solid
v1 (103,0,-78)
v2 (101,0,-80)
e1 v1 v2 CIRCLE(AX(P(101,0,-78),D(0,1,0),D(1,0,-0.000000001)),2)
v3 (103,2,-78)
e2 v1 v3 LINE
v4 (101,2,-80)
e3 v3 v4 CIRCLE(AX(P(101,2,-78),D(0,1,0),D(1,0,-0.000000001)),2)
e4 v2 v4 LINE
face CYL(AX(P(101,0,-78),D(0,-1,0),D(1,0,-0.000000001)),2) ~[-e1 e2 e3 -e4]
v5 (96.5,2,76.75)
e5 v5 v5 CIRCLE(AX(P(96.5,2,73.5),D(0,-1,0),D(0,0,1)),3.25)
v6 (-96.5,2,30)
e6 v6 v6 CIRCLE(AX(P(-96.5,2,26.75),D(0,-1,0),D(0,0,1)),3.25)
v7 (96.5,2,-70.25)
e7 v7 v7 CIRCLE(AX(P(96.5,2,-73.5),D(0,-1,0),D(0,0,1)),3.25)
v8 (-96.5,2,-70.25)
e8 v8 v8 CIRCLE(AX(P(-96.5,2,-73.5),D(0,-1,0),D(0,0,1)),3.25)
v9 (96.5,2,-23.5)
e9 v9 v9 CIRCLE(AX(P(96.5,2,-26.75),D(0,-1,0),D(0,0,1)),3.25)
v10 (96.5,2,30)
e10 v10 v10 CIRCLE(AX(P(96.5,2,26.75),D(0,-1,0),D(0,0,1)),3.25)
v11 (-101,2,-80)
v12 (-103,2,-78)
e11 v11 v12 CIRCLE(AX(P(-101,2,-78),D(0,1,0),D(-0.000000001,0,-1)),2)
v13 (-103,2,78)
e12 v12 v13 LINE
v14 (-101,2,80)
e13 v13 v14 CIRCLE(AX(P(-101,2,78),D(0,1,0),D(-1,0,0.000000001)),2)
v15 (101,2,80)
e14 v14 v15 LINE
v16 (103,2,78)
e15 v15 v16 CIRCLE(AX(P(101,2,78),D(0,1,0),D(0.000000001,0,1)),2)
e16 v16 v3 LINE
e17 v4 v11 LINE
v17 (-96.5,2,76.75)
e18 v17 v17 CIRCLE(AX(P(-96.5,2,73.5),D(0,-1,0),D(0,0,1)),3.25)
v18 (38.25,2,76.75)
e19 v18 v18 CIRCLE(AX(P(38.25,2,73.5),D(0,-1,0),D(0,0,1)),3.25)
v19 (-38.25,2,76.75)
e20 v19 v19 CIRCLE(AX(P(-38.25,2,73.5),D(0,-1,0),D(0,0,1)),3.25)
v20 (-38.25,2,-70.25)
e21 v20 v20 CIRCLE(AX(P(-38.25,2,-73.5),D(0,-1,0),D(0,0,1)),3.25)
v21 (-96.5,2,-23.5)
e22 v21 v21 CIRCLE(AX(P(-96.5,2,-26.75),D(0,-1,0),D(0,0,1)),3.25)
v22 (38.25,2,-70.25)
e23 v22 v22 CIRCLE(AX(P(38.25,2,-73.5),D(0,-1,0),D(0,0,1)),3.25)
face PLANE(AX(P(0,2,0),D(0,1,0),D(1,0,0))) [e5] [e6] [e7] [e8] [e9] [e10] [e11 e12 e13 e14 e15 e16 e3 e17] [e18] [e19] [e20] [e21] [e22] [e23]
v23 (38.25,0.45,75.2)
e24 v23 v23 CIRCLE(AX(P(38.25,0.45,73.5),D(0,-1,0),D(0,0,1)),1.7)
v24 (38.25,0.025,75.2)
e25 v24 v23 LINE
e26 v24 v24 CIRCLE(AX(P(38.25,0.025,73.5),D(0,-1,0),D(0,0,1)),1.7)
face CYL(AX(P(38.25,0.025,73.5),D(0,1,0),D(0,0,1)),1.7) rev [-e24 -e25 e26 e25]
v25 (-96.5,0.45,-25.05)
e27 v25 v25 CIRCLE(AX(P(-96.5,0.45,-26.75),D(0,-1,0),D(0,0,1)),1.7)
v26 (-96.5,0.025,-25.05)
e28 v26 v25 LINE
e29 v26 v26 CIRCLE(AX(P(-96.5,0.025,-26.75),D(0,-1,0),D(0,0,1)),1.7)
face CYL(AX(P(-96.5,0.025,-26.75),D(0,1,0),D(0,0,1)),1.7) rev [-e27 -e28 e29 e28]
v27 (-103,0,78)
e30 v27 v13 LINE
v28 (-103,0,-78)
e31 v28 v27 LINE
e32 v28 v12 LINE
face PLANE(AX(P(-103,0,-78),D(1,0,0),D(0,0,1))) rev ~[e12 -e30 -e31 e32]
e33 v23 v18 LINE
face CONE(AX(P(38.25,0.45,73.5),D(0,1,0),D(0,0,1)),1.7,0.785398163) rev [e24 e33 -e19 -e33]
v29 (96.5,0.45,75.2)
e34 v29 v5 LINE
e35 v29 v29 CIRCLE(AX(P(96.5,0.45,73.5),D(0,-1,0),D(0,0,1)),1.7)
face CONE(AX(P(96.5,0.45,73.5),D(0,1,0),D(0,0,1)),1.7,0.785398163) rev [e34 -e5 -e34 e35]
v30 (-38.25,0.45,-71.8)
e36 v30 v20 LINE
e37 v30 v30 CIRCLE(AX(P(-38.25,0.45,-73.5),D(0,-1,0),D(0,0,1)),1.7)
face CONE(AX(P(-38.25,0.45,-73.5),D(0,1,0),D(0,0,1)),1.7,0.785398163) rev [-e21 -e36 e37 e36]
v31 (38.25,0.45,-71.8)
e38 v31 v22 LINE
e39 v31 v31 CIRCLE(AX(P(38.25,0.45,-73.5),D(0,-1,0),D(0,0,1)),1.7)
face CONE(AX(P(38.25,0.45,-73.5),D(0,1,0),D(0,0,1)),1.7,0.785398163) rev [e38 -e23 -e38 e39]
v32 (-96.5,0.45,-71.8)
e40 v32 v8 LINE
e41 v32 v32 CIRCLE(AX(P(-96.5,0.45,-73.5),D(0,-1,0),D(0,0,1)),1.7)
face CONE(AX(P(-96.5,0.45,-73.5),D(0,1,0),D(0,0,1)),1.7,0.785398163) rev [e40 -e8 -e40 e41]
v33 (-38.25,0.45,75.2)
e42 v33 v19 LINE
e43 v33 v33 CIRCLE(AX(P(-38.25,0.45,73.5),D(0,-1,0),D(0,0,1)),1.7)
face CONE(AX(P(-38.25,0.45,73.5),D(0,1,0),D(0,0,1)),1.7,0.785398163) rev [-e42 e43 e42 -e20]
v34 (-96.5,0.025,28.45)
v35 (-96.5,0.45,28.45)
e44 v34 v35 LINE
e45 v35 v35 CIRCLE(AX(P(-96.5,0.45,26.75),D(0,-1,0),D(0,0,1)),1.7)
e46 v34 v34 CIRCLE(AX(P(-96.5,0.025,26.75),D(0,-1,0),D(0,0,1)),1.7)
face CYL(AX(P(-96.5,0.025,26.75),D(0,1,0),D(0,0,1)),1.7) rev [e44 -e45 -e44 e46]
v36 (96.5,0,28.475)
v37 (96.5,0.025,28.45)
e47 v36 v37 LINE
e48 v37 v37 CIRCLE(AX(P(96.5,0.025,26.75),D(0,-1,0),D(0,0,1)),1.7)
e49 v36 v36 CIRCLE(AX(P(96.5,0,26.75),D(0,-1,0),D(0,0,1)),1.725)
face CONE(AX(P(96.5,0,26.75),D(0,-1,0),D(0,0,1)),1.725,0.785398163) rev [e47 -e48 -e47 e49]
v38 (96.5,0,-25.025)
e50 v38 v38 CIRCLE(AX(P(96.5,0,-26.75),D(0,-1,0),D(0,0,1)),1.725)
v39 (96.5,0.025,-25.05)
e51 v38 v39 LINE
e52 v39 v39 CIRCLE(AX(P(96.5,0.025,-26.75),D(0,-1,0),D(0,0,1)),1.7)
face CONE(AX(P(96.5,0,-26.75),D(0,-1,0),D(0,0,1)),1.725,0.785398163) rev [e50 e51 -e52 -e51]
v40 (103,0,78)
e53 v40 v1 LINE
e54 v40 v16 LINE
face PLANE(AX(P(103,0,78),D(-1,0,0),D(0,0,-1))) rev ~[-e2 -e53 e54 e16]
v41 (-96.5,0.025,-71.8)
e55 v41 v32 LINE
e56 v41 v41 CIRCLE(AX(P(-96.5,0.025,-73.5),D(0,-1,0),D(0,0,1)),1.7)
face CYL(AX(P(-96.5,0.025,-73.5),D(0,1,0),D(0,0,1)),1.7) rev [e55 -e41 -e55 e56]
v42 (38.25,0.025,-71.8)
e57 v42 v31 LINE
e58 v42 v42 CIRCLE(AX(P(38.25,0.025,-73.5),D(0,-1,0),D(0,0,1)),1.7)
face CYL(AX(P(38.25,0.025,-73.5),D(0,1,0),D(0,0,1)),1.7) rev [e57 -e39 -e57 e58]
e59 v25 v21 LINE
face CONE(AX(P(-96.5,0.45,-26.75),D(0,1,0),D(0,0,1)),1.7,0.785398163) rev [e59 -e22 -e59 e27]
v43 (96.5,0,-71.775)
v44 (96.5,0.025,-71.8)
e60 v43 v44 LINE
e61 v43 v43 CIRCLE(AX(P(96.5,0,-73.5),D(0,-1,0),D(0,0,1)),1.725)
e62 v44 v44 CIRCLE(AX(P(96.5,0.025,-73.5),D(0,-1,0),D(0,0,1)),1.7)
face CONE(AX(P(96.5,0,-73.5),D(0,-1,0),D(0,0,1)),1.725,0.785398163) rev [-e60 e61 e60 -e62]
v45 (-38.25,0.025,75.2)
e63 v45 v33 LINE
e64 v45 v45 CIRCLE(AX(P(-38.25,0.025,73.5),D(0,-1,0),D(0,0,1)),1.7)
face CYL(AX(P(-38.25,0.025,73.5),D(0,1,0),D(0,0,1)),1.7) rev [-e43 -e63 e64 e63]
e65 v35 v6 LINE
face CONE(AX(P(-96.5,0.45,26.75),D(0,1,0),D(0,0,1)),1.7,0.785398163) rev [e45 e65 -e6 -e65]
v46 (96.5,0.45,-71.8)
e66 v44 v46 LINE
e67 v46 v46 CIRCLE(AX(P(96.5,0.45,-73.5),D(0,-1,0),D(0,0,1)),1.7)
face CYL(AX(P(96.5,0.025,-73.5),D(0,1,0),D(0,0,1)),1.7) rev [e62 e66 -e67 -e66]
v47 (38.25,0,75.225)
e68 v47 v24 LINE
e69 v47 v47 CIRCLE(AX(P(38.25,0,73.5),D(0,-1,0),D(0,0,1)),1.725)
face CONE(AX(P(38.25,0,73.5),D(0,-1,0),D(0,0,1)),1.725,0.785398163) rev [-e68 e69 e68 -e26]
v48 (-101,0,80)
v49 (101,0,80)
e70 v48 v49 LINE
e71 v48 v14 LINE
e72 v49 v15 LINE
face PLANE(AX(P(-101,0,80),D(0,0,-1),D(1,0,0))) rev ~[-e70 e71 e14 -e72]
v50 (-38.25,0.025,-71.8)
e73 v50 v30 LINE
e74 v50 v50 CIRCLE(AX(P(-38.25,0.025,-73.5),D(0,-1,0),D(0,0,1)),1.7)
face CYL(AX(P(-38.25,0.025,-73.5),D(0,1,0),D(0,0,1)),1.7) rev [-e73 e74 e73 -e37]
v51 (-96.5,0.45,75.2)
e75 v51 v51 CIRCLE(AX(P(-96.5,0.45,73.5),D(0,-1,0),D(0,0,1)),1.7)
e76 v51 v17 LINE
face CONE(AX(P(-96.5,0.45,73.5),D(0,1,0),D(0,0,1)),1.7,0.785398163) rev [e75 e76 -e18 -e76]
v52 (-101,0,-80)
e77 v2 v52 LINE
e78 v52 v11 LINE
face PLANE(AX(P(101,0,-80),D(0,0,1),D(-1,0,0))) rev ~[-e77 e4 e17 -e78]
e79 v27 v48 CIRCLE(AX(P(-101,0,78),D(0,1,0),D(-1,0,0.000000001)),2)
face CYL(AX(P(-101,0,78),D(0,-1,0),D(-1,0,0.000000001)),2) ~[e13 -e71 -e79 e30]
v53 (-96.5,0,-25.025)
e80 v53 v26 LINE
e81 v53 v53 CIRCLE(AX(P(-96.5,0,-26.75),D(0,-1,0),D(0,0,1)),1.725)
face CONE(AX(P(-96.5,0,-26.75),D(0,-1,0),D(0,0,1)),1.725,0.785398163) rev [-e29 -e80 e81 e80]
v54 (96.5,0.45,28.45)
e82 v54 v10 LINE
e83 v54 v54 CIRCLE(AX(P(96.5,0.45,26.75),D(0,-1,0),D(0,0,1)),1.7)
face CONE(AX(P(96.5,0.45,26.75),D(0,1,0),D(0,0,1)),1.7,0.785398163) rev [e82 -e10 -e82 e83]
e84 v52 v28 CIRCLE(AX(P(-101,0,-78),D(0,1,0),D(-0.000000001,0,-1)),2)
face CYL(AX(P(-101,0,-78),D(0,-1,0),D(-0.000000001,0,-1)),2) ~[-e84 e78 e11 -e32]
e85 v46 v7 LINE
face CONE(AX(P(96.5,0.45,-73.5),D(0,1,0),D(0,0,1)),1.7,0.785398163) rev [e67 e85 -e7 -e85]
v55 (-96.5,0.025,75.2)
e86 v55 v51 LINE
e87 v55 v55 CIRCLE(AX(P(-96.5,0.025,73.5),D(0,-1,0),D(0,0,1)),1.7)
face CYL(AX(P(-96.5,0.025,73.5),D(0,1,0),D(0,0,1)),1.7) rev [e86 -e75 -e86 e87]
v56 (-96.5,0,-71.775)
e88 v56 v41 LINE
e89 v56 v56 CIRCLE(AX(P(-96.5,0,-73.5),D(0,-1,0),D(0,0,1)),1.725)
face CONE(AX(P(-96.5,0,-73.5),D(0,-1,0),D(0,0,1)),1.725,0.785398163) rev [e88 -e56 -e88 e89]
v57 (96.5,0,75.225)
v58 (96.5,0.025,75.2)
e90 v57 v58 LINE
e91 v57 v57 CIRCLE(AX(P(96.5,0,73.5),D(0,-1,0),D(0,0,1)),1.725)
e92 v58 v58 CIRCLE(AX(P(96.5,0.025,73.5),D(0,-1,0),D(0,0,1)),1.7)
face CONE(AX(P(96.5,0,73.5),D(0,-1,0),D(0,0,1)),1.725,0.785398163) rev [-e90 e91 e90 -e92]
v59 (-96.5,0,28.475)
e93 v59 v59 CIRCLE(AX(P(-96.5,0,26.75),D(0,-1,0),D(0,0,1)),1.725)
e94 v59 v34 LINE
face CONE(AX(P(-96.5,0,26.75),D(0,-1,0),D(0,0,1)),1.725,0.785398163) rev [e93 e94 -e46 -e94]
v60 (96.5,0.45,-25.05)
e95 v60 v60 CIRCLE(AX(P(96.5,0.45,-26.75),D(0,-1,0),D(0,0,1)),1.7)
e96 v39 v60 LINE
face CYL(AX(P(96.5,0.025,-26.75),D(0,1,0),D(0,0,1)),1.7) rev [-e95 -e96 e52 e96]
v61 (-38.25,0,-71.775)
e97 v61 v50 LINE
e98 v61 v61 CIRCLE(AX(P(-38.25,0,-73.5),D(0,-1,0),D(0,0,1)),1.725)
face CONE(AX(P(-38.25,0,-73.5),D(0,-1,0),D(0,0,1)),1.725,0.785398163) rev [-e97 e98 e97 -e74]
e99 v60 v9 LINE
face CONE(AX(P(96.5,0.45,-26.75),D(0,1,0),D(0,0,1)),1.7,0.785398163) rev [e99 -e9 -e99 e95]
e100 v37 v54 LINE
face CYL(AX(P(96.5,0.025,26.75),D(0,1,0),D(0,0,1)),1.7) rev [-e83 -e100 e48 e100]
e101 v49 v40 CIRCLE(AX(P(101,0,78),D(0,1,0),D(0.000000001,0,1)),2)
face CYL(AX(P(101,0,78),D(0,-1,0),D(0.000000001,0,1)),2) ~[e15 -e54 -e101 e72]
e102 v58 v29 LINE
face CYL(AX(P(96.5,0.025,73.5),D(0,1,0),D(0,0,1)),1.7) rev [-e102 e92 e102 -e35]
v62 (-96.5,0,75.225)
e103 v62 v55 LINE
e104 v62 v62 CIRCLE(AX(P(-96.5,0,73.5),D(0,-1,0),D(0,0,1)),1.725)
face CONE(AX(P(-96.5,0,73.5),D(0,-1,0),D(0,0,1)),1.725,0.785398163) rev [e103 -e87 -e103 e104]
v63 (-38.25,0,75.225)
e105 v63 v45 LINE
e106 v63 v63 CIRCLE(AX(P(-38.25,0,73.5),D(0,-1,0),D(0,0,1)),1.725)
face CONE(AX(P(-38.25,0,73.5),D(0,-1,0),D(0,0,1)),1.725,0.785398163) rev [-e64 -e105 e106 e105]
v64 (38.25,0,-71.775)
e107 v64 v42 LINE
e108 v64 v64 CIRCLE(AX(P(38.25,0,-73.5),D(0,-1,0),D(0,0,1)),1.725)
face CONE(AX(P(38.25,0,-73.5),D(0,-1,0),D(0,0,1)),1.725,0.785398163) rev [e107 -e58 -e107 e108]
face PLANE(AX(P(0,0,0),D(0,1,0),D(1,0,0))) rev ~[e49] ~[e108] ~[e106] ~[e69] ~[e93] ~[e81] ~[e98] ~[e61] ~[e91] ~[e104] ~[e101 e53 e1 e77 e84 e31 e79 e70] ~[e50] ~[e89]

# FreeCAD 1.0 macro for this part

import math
import FreeCAD as App
import Part
import Sketcher
Q = App.Units.Quantity


def add_polygon(sketch, points):
    """Adds a closed chain of lines whose ends are joined by coincident constraints."""
    first, n = sketch.GeometryCount, len(points)
    for a, b in zip(points, points[1:] + points[:1]):
        sketch.addGeometry(Part.LineSegment(App.Vector(*a, 0), App.Vector(*b, 0)), False)
    for i in range(n):
        sketch.addConstraint(Sketcher.Constraint("Coincident", first + i, 2, first + (i + 1) % n, 1))

doc = App.newDocument("Part")
body = doc.addObject("PartDesign::Body", "Body")

sketch1 = body.newObject("Sketcher::SketchObject", "Sketch")
sketch1.AttachmentSupport = (doc.getObject("XZ_Plane"), [""])
sketch1.MapMode = "FlatFace"
sketch1.addGeometry([
    Part.LineSegment(App.Vector(103, 78, 0), App.Vector(103, -78, 0)),
    Part.ArcOfCircle(Part.Circle(App.Vector(101, -78, 0), App.Vector(0, 0, 1), 2), math.radians(-90), math.radians(0)),
    Part.LineSegment(App.Vector(101, -80, 0), App.Vector(-101, -80, 0)),
    Part.ArcOfCircle(Part.Circle(App.Vector(-101, -78, 0), App.Vector(0, 0, 1), 2), math.radians(-180), math.radians(-90)),
    Part.LineSegment(App.Vector(-103, -78, 0), App.Vector(-103, 78, 0)),
    Part.ArcOfCircle(Part.Circle(App.Vector(-101, 78, 0), App.Vector(0, 0, 1), 2), math.radians(90), math.radians(180)),
    Part.LineSegment(App.Vector(-101, 80, 0), App.Vector(101, 80, 0)),
    Part.ArcOfCircle(Part.Circle(App.Vector(101, 78, 0), App.Vector(0, 0, 1), 2), math.radians(0), math.radians(90)),
], False)
sketch1.addConstraint([
    Sketcher.Constraint("Tangent", 0, 2, 1, 2),
    Sketcher.Constraint("Tangent", 1, 1, 2, 1),
    Sketcher.Constraint("Tangent", 2, 2, 3, 2),
    Sketcher.Constraint("Tangent", 3, 1, 4, 1),
    Sketcher.Constraint("Tangent", 4, 2, 5, 2),
    Sketcher.Constraint("Tangent", 5, 1, 6, 1),
    Sketcher.Constraint("Tangent", 6, 2, 7, 2),
    Sketcher.Constraint("Tangent", 7, 1, 0, 1),
    Sketcher.Constraint("Vertical", 0),
    Sketcher.Constraint("Horizontal", 2),
    Sketcher.Constraint("Vertical", 4),
    Sketcher.Constraint("Horizontal", 6),
    Sketcher.Constraint("Equal", 1, 3),
    Sketcher.Constraint("Equal", 3, 5),
    Sketcher.Constraint("Equal", 5, 7),
    Sketcher.Constraint("Symmetric", 1, 3, 5, 3, -1, 1),
    Sketcher.Constraint("Radius", 1, 2.0),
    Sketcher.Constraint("DistanceX", 2, 2, 2, 1, 202.0),
    Sketcher.Constraint("DistanceY", 0, 2, 0, 1, 156.0),
])
pad1 = body.newObject("PartDesign::Pad", "Pad")
pad1.Profile = sketch1
pad1.Length = 2
pad1.Reversed = True

sketch2 = body.newObject("Sketcher::SketchObject", "Sketch001")
sketch2.AttachmentSupport = (doc.getObject("YZ_Plane"), [""])
sketch2.MapMode = "FlatFace"
sketch2.AttachmentOffset = App.Placement(App.Vector(0, 0, -96.5), App.Rotation())
add_polygon(sketch2, [(0, -73.5), (2, -73.5), (2, -70.25), (0.45, -71.8), (0.025, -71.8), (0, -71.775)])
sketch2.addGeometry(Part.LineSegment(App.Vector(2, -73.5, 0), App.Vector(0, -73.5, 0)), True)
sketch2.addConstraint([
    Sketcher.Constraint("Horizontal", 0),
    Sketcher.Constraint("Vertical", 1),
    Sketcher.Constraint("Horizontal", 3),
    Sketcher.Constraint("Vertical", 5),
    Sketcher.Constraint("Horizontal", 6),
    Sketcher.Constraint("Coincident", 6, 1, 0, 2),
    Sketcher.Constraint("PointOnObject", 4, 2, -2),
    Sketcher.Constraint("PointOnObject", 6, 2, -2),
    Sketcher.Constraint("Perpendicular", 2, 4),
    Sketcher.Constraint("DistanceX", 0, 1, 0, 2, 2.0),
    Sketcher.Constraint("Angle", 2, Q("-135 deg")),
    Sketcher.Constraint("DistanceY", 1, 1, 1, 2, 3.25),
    Sketcher.Constraint("DistanceY", 0, 2, -1, 1, 73.5),
    Sketcher.Constraint("DistanceY", 2, 2, -1, 1, 71.8),
    Sketcher.Constraint("DistanceX", 3, 2, 3, 1, 0.425),
])
groove = body.newObject("PartDesign::Groove", "Groove")
groove.Profile = sketch2
groove.ReferenceAxis = (sketch2, ["Axis0"])
groove.Angle = 360
doc.recompute()

linearpattern = body.newObject("PartDesign::LinearPattern", "LinearPattern")
linearpattern.Originals = [groove]
linearpattern.Direction = (doc.getObject("Z_Axis"), [""])
linearpattern.Mode = "offset"
linearpattern.Offset = 46.75
linearpattern.Occurrences = 2
body.Tip = linearpattern
doc.recompute()

linearpattern2 = body.newObject("PartDesign::LinearPattern", "LinearPattern001")
linearpattern2.Originals = [groove]
linearpattern2.Direction = (doc.getObject("X_Axis"), [""])
linearpattern2.Mode = "offset"
linearpattern2.Offset = 58.25
linearpattern2.Occurrences = 2
body.Tip = linearpattern2
doc.recompute()

linearpattern3 = body.newObject("PartDesign::LinearPattern", "LinearPattern002")
linearpattern3.Originals = [groove]
linearpattern3.Direction = (doc.getObject("X_Axis"), [""])
linearpattern3.Mode = "offset"
linearpattern3.Offset = 134.75
linearpattern3.Occurrences = 2
body.Tip = linearpattern3
doc.recompute()

linearpattern4 = body.newObject("PartDesign::LinearPattern", "LinearPattern003")
linearpattern4.Originals = [groove]
linearpattern4.Direction = (doc.getObject("X_Axis"), [""])
linearpattern4.Mode = "offset"
linearpattern4.Offset = 193
linearpattern4.Occurrences = 2
body.Tip = linearpattern4
doc.recompute()

datumline = body.newObject("PartDesign::Line", "DatumLine")
datumline.Placement = App.Placement(App.Vector(0, 0, 0), App.Rotation(App.Vector(0, 0, 1), App.Vector(0.971893764, 0, 0.235419863)))
linearpattern5 = body.newObject("PartDesign::LinearPattern", "LinearPattern004")
linearpattern5.Originals = [groove]
linearpattern5.Direction = (datumline, [""])
linearpattern5.Mode = "offset"
linearpattern5.Offset = 198.581375
linearpattern5.Occurrences = 2
body.Tip = linearpattern5
doc.recompute()

datumline2 = body.newObject("PartDesign::Line", "DatumLine001")
datumline2.Placement = App.Placement(App.Vector(0, 0, 0), App.Rotation(App.Vector(0, 0, 1), App.Vector(0.88742374, 0, 0.460954559)))
linearpattern6 = body.newObject("PartDesign::LinearPattern", "LinearPattern005")
linearpattern6.Originals = [groove]
linearpattern6.Direction = (datumline2, [""])
linearpattern6.Mode = "offset"
linearpattern6.Offset = 217.483476
linearpattern6.Occurrences = 2
body.Tip = linearpattern6
doc.recompute()

datumline3 = body.newObject("PartDesign::Line", "DatumLine002")
datumline3.Placement = App.Placement(App.Vector(0, 0, 0), App.Rotation(App.Vector(0, 0, 1), App.Vector(0.795526331, 0, 0.605919019)))
linearpattern7 = body.newObject("PartDesign::LinearPattern", "LinearPattern006")
linearpattern7.Originals = [groove]
linearpattern7.Direction = (datumline3, [""])
linearpattern7.Mode = "offset"
linearpattern7.Offset = 242.606678
linearpattern7.Occurrences = 2
body.Tip = linearpattern7
doc.recompute()

datumline4 = body.newObject("PartDesign::Line", "DatumLine003")
datumline4.Placement = App.Placement(App.Vector(0, 0, 0), App.Rotation(App.Vector(0, 0, 1), App.Vector(0.675724629, 0, 0.73715414)))
linearpattern8 = body.newObject("PartDesign::LinearPattern", "LinearPattern007")
linearpattern8.Originals = [groove]
linearpattern8.Direction = (datumline4, [""])
linearpattern8.Mode = "offset"
linearpattern8.Offset = 199.415552
linearpattern8.Occurrences = 2
body.Tip = linearpattern8
doc.recompute()

datumline5 = body.newObject("PartDesign::Line", "DatumLine004")
datumline5.Placement = App.Placement(App.Vector(0, 0, 0), App.Rotation(App.Vector(0, 0, 1), App.Vector(0.368390152, 0, 0.929671284)))
linearpattern9 = body.newObject("PartDesign::LinearPattern", "LinearPattern008")
linearpattern9.Originals = [groove]
linearpattern9.Direction = (datumline5, [""])
linearpattern9.Mode = "offset"
linearpattern9.Offset = 158.120405
linearpattern9.Occurrences = 2
body.Tip = linearpattern9
doc.recompute()

linearpattern10 = body.newObject("PartDesign::LinearPattern", "LinearPattern009")
linearpattern10.Originals = [groove]
linearpattern10.Direction = (doc.getObject("Z_Axis"), [""])
linearpattern10.Mode = "offset"
linearpattern10.Offset = 147
linearpattern10.Occurrences = 2
body.Tip = linearpattern10
doc.recompute()

linearpattern11 = body.newObject("PartDesign::LinearPattern", "LinearPattern010")
linearpattern11.Originals = [groove]
linearpattern11.Direction = (doc.getObject("Z_Axis"), [""])
linearpattern11.Mode = "offset"
linearpattern11.Offset = 100.25
linearpattern11.Occurrences = 2
body.Tip = linearpattern11

doc.recompute()
